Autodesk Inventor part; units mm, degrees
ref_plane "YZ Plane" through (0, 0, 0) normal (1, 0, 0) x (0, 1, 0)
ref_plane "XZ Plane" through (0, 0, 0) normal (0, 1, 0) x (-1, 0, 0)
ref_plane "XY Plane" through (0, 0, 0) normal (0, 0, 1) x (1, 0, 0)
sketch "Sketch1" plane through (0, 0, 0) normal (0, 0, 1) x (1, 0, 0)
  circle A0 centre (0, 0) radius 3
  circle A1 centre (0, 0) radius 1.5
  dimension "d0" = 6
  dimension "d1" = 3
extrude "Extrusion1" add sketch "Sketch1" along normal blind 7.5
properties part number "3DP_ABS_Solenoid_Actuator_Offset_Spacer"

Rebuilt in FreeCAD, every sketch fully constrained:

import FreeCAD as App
import Part
import Sketcher
Q = App.Units.Quantity

doc = App.newDocument("Part")
params = doc.addObject("Spreadsheet::Sheet", "Params")
for row, (alias, value) in enumerate([
    ("sketch1_diameter", "6 mm"),
    ("sketch1_diameter2", "3 mm"),
    ("pad1_length", "7.5 mm"),
], start=1):
    params.set(f"A{row}", alias)
    params.set(f"B{row}", "=" + value)
    params.setAlias(f"B{row}", alias)

body = doc.addObject("PartDesign::Body", "Body")

# Sketch on XY plane
sketch1 = body.newObject("Sketcher::SketchObject", "Sketch")
sketch1.AttachmentSupport = (doc.getObject("XY_Plane"), [""])
sketch1.MapMode = "FlatFace"
sketch1.addGeometry([
    Part.Circle(App.Vector(0, 0, 0), App.Vector(0, 0, 1), 3),
    Part.Circle(App.Vector(0, 0, 0), App.Vector(0, 0, 1), 1.5),
], False)
sketch1.addConstraint([
    Sketcher.Constraint("Coincident", 0, 3, -1, 1),
    Sketcher.Constraint("Coincident", 1, 3, -1, 1),
    Sketcher.Constraint("Diameter", 0, Q("6 mm")),
    Sketcher.Constraint("Diameter", 1, Q("3 mm")),
])
sketch1.setExpression("Constraints[2]", "Params.sketch1_diameter")
sketch1.setExpression("Constraints[3]", "Params.sketch1_diameter2")
pad1 = body.newObject("PartDesign::Pad", "Pad")
pad1.Profile = sketch1
pad1.setExpression("Length", "Params.pad1_length")

doc.recompute()
